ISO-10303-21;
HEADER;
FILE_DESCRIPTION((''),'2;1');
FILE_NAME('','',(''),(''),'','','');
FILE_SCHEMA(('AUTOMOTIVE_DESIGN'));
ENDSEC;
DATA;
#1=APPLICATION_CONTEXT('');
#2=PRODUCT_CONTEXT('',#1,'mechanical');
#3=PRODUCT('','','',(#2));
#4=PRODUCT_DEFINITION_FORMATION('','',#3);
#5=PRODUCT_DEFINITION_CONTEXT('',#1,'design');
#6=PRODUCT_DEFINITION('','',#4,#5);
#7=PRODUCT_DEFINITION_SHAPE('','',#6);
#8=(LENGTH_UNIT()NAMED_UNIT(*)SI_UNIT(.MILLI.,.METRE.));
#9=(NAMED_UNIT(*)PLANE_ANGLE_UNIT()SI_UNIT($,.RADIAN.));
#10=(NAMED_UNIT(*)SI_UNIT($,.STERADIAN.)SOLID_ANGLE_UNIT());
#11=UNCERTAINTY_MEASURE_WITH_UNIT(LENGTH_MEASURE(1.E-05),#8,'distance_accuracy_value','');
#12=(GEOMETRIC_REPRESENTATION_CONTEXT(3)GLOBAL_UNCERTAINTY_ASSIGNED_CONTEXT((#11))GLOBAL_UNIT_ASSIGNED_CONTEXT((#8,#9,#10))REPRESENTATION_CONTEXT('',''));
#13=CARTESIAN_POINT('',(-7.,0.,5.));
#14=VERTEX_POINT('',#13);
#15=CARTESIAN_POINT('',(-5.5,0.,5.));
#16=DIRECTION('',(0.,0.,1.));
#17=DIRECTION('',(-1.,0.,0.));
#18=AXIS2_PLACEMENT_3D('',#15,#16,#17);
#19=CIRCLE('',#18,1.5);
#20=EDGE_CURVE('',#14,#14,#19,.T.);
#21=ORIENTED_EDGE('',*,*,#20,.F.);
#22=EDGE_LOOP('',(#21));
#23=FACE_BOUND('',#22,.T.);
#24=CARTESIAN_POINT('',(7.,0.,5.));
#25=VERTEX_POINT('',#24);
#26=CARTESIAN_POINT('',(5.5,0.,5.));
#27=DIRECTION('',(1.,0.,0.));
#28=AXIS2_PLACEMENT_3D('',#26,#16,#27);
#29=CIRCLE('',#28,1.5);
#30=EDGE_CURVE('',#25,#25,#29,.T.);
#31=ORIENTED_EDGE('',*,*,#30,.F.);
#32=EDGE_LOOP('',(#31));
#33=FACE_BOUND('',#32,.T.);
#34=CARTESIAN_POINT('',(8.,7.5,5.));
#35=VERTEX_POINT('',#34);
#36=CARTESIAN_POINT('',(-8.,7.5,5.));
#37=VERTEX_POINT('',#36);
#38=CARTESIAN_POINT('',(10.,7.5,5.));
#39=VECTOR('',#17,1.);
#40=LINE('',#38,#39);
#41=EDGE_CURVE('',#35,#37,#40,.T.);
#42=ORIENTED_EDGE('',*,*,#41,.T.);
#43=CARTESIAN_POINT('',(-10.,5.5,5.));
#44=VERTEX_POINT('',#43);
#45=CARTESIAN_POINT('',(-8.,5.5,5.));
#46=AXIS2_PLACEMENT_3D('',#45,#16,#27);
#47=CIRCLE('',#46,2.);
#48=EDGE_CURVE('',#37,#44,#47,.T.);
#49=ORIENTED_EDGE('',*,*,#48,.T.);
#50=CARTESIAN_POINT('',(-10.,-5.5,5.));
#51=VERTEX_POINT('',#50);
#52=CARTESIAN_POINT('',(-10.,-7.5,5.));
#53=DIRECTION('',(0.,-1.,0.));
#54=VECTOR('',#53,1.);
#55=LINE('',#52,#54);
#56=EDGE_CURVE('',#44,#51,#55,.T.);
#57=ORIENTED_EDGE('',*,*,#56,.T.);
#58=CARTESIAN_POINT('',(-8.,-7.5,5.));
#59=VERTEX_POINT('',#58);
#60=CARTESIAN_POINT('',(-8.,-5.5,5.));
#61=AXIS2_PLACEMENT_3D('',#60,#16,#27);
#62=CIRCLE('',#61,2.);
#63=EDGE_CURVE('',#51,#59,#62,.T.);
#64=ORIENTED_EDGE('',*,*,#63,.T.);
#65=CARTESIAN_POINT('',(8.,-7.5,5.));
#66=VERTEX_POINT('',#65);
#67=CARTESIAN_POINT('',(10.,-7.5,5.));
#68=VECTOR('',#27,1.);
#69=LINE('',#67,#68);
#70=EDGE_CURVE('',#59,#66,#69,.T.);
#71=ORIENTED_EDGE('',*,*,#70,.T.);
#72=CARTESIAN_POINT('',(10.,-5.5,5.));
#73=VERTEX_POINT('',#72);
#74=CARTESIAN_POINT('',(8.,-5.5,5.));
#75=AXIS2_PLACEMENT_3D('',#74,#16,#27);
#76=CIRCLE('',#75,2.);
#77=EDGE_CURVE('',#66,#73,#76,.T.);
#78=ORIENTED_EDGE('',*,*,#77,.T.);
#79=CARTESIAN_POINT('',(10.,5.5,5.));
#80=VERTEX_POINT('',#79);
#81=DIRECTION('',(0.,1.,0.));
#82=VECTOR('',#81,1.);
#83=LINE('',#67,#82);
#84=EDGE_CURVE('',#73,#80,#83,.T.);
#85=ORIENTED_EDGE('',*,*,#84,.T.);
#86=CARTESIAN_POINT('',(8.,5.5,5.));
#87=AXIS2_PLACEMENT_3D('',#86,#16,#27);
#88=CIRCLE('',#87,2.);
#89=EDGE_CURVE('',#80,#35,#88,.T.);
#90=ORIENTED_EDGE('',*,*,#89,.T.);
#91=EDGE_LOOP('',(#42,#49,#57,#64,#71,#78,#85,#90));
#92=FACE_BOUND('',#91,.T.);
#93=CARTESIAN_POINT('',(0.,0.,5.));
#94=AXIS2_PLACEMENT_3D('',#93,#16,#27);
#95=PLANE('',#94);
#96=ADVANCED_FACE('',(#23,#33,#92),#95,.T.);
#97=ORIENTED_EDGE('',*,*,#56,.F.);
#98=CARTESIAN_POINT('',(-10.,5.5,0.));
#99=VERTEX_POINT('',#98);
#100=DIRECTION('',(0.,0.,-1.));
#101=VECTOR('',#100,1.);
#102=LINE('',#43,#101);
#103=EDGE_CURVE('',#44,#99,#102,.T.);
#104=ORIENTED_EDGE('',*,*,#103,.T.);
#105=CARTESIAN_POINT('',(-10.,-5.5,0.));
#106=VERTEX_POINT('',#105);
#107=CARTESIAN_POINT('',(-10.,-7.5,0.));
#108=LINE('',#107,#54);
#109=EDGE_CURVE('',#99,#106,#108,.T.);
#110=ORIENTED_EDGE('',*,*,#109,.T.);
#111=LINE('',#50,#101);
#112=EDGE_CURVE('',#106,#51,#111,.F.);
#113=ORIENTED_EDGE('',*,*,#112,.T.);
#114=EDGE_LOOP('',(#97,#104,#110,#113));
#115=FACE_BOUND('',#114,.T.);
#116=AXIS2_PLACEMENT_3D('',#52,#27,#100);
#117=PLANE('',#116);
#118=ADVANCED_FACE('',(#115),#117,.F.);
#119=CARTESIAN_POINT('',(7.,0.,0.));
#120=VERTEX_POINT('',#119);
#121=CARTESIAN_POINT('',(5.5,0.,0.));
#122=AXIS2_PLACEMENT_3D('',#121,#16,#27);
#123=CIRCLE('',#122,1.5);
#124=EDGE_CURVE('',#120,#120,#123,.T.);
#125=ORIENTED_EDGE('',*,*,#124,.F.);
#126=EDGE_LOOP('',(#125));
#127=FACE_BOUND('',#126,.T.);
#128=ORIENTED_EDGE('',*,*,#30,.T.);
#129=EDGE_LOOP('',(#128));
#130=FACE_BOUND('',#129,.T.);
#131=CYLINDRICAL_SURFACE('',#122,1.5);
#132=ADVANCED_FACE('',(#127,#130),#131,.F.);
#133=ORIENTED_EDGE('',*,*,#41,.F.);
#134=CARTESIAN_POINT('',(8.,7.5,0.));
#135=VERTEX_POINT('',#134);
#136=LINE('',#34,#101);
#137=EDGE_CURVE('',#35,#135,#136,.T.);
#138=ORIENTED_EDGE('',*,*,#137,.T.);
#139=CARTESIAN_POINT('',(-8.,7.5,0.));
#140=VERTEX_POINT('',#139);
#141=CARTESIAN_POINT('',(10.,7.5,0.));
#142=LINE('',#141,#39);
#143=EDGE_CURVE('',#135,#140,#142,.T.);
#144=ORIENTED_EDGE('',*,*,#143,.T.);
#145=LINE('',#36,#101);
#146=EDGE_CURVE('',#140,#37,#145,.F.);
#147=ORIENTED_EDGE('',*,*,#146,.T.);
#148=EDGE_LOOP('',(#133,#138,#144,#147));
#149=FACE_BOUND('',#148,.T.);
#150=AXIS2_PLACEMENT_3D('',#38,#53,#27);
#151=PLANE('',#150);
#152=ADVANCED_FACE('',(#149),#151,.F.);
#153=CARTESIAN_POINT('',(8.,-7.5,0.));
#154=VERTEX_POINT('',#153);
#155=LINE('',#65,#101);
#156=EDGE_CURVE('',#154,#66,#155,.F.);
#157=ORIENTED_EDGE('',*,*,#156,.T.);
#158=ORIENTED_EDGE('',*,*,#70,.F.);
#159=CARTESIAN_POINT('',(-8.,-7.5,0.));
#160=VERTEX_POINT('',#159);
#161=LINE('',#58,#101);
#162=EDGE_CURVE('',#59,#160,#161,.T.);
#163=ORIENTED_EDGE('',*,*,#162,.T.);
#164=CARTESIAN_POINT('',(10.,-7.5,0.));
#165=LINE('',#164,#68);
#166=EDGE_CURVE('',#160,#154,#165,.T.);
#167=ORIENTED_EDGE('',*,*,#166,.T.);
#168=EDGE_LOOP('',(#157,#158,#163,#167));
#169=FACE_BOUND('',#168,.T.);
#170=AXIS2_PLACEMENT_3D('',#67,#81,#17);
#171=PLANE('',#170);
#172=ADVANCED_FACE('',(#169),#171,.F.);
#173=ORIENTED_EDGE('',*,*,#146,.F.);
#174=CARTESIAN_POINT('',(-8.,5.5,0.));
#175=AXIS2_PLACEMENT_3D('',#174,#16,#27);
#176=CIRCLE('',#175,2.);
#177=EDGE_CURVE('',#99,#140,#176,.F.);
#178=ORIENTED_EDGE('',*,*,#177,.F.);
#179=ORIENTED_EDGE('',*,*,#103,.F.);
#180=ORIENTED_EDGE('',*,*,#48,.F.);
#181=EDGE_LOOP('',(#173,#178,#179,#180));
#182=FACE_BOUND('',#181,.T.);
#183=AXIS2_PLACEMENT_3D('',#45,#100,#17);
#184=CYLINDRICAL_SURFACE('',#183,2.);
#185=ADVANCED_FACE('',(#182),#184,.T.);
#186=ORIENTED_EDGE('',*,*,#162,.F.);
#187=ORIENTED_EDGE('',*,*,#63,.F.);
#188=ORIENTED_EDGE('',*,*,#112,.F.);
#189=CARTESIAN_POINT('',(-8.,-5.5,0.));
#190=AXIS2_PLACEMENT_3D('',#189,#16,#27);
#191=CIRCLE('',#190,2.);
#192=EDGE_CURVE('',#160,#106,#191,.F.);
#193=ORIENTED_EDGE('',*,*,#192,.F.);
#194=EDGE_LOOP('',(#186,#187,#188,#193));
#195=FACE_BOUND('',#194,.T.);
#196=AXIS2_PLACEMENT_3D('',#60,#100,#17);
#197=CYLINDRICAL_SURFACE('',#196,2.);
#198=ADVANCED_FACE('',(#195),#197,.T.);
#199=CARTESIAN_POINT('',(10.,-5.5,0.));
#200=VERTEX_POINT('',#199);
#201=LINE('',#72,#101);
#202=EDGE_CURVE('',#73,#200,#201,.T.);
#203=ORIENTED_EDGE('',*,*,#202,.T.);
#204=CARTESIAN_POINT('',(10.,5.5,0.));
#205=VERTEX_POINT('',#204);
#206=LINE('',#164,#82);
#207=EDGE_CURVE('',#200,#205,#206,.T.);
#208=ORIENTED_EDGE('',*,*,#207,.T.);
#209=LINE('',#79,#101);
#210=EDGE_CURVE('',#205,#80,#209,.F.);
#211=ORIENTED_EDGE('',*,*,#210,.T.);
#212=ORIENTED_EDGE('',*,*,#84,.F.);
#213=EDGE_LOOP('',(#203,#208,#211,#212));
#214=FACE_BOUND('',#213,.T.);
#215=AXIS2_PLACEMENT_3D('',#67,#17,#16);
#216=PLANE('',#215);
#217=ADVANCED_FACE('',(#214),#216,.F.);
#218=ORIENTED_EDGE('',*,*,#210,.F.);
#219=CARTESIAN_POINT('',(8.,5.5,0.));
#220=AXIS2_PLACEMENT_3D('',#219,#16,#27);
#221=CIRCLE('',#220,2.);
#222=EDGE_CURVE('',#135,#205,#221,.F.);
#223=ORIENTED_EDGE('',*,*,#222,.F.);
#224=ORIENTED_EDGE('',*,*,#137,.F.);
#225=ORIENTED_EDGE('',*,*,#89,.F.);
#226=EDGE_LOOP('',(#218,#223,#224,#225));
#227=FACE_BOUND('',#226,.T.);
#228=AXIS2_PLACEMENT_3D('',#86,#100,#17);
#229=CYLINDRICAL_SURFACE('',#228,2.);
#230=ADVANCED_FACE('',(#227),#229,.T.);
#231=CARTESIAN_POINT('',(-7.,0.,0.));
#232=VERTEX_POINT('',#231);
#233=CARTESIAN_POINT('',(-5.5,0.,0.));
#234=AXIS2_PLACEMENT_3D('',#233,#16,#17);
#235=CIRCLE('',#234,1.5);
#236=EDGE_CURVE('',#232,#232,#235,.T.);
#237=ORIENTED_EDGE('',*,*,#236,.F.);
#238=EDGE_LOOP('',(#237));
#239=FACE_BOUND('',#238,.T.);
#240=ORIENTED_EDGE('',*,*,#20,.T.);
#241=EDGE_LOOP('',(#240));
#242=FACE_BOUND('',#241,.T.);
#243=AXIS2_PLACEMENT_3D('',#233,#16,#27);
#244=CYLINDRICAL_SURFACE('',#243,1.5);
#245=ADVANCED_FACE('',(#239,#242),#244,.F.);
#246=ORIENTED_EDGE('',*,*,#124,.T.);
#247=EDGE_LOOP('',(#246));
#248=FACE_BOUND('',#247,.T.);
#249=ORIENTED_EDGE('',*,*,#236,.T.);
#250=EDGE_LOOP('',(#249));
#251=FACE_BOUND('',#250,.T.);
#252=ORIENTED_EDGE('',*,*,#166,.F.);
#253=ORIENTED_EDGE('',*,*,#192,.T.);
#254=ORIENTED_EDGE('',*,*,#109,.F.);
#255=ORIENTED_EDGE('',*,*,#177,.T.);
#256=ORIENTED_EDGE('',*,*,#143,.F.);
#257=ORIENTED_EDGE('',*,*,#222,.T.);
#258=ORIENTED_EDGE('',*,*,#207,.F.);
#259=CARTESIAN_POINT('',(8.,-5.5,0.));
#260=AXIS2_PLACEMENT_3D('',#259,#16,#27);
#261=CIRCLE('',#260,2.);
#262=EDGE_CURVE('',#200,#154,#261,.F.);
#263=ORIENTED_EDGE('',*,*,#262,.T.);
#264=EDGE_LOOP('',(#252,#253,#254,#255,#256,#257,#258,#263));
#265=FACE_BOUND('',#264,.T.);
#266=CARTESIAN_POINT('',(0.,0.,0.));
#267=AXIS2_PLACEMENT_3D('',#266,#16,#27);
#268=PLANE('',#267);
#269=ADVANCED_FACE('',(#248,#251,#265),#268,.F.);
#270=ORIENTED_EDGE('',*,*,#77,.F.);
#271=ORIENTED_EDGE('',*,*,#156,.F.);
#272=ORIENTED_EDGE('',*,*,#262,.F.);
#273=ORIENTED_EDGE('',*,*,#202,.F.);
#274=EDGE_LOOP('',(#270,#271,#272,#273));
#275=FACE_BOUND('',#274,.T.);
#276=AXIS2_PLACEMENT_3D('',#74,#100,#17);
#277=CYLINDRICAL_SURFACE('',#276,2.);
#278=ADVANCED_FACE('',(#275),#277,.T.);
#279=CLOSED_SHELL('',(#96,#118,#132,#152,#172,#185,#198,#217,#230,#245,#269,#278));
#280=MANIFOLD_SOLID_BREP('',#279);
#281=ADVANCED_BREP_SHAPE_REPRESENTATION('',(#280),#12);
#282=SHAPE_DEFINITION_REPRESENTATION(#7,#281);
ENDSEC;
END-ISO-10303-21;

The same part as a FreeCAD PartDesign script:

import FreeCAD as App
import Part
import Sketcher
from FreeCAD import Vector


def edges_at(feature, points):
    """Names of the edges that pass closest to the given points."""
    edges = feature.Shape.Edges
    near = lambda p: min(range(len(edges)), key=lambda i: edges[i].distToShape(Part.Vertex(*p))[0])
    return sorted({f"Edge{near(p) + 1}" for p in points})

doc = App.newDocument("Part")
body = doc.addObject("PartDesign::Body", "Body")

sketch1 = body.newObject("Sketcher::SketchObject", "Sketch")
sketch1.AttachmentSupport = (doc.getObject("XY_Plane"), [""])
sketch1.MapMode = "FlatFace"
sketch1.addGeometry(Part.LineSegment(Vector(-10, 8, 0), Vector(-10, -8, 0)), False)
sketch1.addGeometry(Part.LineSegment(Vector(-10, -8, 0), Vector(10, -8, 0)), False)
sketch1.addGeometry(Part.LineSegment(Vector(10, -8, 0), Vector(10, 8, 0)), False)
sketch1.addGeometry(Part.LineSegment(Vector(10, 8, 0), Vector(-10, 8, 0)), False)
sketch1.addConstraint(Sketcher.Constraint("Coincident", 0, 2, 1, 1))
sketch1.addConstraint(Sketcher.Constraint("Coincident", 1, 2, 2, 1))
sketch1.addConstraint(Sketcher.Constraint("Coincident", 2, 2, 3, 1))
sketch1.addConstraint(Sketcher.Constraint("Coincident", 3, 2, 0, 1))
sketch1.addConstraint(Sketcher.Constraint("Vertical", 0))
sketch1.addConstraint(Sketcher.Constraint("Horizontal", 1))
sketch1.addConstraint(Sketcher.Constraint("Vertical", 2))
sketch1.addConstraint(Sketcher.Constraint("Horizontal", 3))
sketch1.addConstraint(Sketcher.Constraint("Symmetric", 0, 2, 2, 2, -1, 1))
sketch1.addConstraint(Sketcher.Constraint("DistanceX", 1, 1, 1, 2, 20.0))
sketch1.addConstraint(Sketcher.Constraint("DistanceY", 0, 2, 0, 1, 15.0))
pad1 = body.newObject("PartDesign::Pad", "Pad")
pad1.Profile = sketch1
pad1.Length = 5

sketch2 = body.newObject("Sketcher::SketchObject", "Sketch001")
sketch2.AttachmentSupport = (doc.getObject("XY_Plane"), [""])
sketch2.MapMode = "FlatFace"
sketch2.AttachmentOffset = App.Placement(Vector(0, 0, 5), App.Rotation())
sketch2.addGeometry(Part.Circle(Vector(5.5, 0, 0), Vector(0, 0, 1), 1.5), False)
sketch2.addGeometry(Part.Circle(Vector(-5.5, 0, 0), Vector(0, 0, 1), 1.5), False)
sketch2.addConstraint(Sketcher.Constraint("Equal", 0, 1))
sketch2.addConstraint(Sketcher.Constraint("Symmetric", 0, 3, 1, 3, -1, 1))
sketch2.addConstraint(Sketcher.Constraint("PointOnObject", 0, 3, -1))
sketch2.addConstraint(Sketcher.Constraint("Diameter", 0, 3.0))
sketch2.addConstraint(Sketcher.Constraint("DistanceX", 1, 3, 0, 3, 11.0))
pocket1 = body.newObject("PartDesign::Pocket", "Pocket")
pocket1.Profile = sketch2
pocket1.Type = "ThroughAll"
doc.recompute()

fillet = body.newObject("PartDesign::Fillet", "Fillet")
fillet.Base = (pocket1, edges_at(pocket1, [
    (-10, 7.5, 2.5),
    (10, 7.5, 2.5),
    (10, -7.5, 2.5),
    (-10, -7.5, 2.5),
]))
fillet.Radius = 2

doc.recompute()
